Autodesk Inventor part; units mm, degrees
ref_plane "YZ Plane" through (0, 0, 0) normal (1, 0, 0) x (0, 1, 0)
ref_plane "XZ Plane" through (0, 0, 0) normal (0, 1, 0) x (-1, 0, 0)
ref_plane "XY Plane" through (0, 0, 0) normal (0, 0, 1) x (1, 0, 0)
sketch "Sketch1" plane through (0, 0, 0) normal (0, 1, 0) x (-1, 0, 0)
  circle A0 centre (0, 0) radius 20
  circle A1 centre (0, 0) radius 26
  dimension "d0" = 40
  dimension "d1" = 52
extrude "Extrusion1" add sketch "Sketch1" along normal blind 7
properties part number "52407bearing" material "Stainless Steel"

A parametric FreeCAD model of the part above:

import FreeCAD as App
import Part
import Sketcher

V = App.Vector

doc = App.newDocument("Part")
body = doc.addObject("PartDesign::Body", "Body")

# Sketch on XZ plane
sketch1 = body.newObject("Sketcher::SketchObject", "Sketch")
sketch1.AttachmentSupport = (doc.getObject("XZ_Plane"), [""])
sketch1.MapMode = "FlatFace"
sketch1.addGeometry(Part.Circle(V(0, 0, 0), V(0, 0, 1), 26), False)
sketch1.addGeometry(Part.Circle(V(0, 0, 0), V(0, 0, 1), 20), False)
sketch1.addConstraint(Sketcher.Constraint("Coincident", 0, 3, -1, 1))
sketch1.addConstraint(Sketcher.Constraint("Coincident", 1, 3, -1, 1))
sketch1.addConstraint(Sketcher.Constraint("Diameter", 0, 52.0))
sketch1.addConstraint(Sketcher.Constraint("Diameter", 1, 40.0))
pad1 = body.newObject("PartDesign::Pad", "Pad")
pad1.Profile = sketch1
pad1.Length = 7
pad1.Reversed = True

doc.recompute()
